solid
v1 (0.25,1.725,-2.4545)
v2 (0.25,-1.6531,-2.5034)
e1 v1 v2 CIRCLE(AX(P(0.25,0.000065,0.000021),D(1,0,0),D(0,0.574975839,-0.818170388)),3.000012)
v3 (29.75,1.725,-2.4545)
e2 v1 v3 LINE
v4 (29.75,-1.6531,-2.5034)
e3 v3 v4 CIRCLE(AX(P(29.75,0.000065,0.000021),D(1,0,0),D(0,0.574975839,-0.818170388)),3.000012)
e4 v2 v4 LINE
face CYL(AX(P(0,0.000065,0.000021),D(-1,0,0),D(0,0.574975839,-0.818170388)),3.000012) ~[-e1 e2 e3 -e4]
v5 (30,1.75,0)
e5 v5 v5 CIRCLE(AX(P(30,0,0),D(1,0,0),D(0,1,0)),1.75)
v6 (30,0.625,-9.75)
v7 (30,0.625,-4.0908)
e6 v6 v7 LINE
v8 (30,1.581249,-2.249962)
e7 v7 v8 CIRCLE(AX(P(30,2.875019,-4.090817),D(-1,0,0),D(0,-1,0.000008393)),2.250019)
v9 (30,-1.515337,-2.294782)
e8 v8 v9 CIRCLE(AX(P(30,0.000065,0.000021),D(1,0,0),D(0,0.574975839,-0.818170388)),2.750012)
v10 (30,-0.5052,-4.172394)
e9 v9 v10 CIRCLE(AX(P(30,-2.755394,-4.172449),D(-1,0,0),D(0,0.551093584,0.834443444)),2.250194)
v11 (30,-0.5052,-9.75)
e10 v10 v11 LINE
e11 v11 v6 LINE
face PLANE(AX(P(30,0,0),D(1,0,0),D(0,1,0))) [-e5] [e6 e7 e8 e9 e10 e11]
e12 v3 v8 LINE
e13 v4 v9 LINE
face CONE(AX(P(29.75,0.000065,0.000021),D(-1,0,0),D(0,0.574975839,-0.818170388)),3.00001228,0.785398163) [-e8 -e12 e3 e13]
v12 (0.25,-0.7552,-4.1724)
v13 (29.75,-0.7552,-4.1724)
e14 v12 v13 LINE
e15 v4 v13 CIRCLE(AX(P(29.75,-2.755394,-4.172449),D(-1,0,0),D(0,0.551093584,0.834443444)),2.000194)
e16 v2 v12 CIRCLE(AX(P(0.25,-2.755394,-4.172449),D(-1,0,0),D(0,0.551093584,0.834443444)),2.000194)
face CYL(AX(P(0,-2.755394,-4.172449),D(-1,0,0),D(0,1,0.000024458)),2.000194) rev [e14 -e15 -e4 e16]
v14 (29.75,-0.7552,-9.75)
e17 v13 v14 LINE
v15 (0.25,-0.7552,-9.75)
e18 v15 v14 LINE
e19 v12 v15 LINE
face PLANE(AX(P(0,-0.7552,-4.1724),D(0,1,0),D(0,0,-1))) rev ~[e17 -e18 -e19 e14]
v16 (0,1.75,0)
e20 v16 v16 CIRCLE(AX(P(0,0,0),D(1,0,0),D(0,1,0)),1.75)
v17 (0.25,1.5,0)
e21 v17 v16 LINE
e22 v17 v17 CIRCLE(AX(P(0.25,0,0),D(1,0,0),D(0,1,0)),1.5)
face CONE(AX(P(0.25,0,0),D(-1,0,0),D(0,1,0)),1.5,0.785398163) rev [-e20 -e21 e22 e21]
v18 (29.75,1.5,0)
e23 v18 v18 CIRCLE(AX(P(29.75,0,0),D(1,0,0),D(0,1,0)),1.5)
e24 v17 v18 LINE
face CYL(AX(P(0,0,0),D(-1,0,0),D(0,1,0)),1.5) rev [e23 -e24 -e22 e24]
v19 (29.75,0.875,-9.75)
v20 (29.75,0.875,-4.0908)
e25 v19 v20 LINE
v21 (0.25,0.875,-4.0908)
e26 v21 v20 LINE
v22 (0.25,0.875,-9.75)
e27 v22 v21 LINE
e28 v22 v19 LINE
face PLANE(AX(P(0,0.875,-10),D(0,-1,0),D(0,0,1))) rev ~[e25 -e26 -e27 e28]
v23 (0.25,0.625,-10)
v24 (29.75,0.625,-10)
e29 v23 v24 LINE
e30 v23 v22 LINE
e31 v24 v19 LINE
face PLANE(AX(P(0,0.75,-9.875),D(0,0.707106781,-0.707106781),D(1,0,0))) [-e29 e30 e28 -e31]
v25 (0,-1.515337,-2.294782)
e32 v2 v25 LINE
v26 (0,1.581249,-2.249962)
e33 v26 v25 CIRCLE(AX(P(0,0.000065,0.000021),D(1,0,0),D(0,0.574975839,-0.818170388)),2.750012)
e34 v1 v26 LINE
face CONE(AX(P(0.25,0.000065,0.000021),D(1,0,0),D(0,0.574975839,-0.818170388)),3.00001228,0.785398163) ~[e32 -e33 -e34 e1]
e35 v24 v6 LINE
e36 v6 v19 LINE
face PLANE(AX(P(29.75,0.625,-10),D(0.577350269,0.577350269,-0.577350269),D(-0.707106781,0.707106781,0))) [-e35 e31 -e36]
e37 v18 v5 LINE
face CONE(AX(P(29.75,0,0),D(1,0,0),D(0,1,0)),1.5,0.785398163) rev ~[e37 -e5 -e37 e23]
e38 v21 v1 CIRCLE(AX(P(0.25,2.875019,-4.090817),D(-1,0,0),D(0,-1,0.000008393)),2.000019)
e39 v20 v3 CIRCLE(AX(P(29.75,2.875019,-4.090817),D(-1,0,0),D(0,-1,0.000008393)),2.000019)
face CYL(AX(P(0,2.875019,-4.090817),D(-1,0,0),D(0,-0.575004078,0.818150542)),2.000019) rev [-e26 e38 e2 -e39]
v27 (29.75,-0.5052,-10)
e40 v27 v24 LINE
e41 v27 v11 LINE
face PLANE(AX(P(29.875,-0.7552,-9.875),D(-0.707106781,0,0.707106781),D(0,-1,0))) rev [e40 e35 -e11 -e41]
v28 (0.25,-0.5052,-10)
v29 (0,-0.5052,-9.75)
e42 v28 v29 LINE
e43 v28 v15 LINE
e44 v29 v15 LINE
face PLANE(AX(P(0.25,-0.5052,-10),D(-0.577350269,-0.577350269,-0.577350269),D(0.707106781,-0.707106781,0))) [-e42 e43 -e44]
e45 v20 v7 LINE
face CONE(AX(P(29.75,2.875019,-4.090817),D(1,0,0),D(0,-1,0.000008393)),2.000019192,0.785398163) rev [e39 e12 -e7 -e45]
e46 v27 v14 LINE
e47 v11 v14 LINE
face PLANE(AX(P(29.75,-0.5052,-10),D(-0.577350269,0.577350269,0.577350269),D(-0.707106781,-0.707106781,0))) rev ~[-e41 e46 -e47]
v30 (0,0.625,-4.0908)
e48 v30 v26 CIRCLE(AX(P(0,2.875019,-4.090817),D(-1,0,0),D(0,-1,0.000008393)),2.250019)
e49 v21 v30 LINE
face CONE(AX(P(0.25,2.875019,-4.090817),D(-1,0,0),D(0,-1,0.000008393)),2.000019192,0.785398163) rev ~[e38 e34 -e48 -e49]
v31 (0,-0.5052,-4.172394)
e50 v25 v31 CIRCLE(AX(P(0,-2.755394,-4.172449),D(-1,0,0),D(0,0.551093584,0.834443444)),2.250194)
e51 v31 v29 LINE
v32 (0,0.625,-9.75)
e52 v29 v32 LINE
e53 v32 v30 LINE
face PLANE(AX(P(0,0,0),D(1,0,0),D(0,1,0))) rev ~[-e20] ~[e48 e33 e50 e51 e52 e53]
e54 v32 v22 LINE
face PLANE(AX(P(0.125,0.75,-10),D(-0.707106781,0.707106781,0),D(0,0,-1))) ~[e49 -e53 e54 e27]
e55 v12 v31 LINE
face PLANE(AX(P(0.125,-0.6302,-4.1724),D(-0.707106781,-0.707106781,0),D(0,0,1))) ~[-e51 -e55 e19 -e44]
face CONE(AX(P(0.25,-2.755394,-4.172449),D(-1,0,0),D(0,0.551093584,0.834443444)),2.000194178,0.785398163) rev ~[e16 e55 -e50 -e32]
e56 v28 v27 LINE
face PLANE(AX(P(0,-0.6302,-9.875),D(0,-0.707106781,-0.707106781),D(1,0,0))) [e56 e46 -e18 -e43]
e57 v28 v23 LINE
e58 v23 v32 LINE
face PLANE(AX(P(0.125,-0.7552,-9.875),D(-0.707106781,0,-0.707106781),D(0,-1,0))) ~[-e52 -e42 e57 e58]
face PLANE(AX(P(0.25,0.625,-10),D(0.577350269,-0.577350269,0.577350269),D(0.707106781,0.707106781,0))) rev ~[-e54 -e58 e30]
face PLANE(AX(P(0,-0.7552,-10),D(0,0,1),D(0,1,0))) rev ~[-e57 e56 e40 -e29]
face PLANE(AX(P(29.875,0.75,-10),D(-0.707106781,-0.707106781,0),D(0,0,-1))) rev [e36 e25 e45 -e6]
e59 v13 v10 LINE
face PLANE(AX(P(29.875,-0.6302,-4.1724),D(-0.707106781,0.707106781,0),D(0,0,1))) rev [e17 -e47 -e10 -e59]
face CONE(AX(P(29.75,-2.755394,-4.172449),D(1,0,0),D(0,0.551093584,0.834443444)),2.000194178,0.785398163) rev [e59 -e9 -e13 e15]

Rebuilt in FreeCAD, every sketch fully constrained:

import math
import FreeCAD as App
import Part
import Sketcher
from FreeCAD import Vector

doc = App.newDocument("Part")
body = doc.addObject("PartDesign::Body", "Body")

# Sketch on YZ plane
sketch1 = body.newObject("Sketcher::SketchObject", "Sketch")
sketch1.AttachmentSupport = (doc.getObject("YZ_Plane"), [""])
sketch1.MapMode = "FlatFace"
sketch1.addGeometry([
    Part.ArcOfCircle(Part.Circle(Vector(2.875, -4.0908, 0), Vector(0, 0, 1), 1.999994), math.radians(125.099744), math.radians(180)),  # 0
    Part.ArcOfCircle(Part.Circle(Vector(0, 0, 0), Vector(0, 0, 1), 3.000033), math.radians(-54.900805), math.radians(236.561544)),  # 1
    Part.ArcOfCircle(Part.Circle(Vector(-2.7552, -4.1724, 0), Vector(0, 0, 1), 2), math.radians(0), math.radians(56.5618)),  # 2
    Part.LineSegment(Vector(-0.7552, -4.1724, 0), Vector(-0.7552, -10, 0)),  # 3
    Part.LineSegment(Vector(-0.7552, -10, 0), Vector(0.875, -10, 0)),  # 4
    Part.LineSegment(Vector(0.875, -10, 0), Vector(0.875, -4.0908, 0)),  # 5
    Part.Circle(Vector(0, 0, 0), Vector(0, 0, 1), 1.5),  # 6
], False)
sketch1.addConstraint([
    Sketcher.Constraint("Tangent", 0, 1, 1, 1),
    Sketcher.Constraint("Tangent", 1, 2, 2, 2),
    Sketcher.Constraint("Tangent", 2, 1, 3, 1),
    Sketcher.Constraint("Coincident", 3, 2, 4, 1),
    Sketcher.Constraint("Coincident", 4, 2, 5, 1),
    Sketcher.Constraint("Tangent", 5, 2, 0, 2),
    Sketcher.Constraint("Vertical", 3),
    Sketcher.Constraint("Horizontal", 4),
    Sketcher.Constraint("Vertical", 5),
    Sketcher.Constraint("Coincident", 1, 3, -1, 1),
    Sketcher.Constraint("Coincident", 6, 3, -1, 1),
    Sketcher.Constraint("Equal", 0, 2),
    Sketcher.Constraint("Diameter", 6, 3.0),
    Sketcher.Constraint("Radius", 0, 2.0),
    Sketcher.Constraint("Radius", 1, 3.0),
    Sketcher.Constraint("DistanceY", 3, 2, -1, 1, 10.0),
    Sketcher.Constraint("DistanceX", 0, 1, 0, 3, 1.15),
    Sketcher.Constraint("DistanceX", 4, 1, 4, 2, 1.6302),
])
pad1 = body.newObject("PartDesign::Pad", "Pad")
pad1.Profile = sketch1
pad1.Length = 30
doc.recompute()

chamfer = body.newObject("PartDesign::Chamfer", "Chamfer")
chamfer.Base = (pad1, ["Edge1"])
chamfer.UseAllEdges = True
chamfer.Size = 0.25

doc.recompute()
